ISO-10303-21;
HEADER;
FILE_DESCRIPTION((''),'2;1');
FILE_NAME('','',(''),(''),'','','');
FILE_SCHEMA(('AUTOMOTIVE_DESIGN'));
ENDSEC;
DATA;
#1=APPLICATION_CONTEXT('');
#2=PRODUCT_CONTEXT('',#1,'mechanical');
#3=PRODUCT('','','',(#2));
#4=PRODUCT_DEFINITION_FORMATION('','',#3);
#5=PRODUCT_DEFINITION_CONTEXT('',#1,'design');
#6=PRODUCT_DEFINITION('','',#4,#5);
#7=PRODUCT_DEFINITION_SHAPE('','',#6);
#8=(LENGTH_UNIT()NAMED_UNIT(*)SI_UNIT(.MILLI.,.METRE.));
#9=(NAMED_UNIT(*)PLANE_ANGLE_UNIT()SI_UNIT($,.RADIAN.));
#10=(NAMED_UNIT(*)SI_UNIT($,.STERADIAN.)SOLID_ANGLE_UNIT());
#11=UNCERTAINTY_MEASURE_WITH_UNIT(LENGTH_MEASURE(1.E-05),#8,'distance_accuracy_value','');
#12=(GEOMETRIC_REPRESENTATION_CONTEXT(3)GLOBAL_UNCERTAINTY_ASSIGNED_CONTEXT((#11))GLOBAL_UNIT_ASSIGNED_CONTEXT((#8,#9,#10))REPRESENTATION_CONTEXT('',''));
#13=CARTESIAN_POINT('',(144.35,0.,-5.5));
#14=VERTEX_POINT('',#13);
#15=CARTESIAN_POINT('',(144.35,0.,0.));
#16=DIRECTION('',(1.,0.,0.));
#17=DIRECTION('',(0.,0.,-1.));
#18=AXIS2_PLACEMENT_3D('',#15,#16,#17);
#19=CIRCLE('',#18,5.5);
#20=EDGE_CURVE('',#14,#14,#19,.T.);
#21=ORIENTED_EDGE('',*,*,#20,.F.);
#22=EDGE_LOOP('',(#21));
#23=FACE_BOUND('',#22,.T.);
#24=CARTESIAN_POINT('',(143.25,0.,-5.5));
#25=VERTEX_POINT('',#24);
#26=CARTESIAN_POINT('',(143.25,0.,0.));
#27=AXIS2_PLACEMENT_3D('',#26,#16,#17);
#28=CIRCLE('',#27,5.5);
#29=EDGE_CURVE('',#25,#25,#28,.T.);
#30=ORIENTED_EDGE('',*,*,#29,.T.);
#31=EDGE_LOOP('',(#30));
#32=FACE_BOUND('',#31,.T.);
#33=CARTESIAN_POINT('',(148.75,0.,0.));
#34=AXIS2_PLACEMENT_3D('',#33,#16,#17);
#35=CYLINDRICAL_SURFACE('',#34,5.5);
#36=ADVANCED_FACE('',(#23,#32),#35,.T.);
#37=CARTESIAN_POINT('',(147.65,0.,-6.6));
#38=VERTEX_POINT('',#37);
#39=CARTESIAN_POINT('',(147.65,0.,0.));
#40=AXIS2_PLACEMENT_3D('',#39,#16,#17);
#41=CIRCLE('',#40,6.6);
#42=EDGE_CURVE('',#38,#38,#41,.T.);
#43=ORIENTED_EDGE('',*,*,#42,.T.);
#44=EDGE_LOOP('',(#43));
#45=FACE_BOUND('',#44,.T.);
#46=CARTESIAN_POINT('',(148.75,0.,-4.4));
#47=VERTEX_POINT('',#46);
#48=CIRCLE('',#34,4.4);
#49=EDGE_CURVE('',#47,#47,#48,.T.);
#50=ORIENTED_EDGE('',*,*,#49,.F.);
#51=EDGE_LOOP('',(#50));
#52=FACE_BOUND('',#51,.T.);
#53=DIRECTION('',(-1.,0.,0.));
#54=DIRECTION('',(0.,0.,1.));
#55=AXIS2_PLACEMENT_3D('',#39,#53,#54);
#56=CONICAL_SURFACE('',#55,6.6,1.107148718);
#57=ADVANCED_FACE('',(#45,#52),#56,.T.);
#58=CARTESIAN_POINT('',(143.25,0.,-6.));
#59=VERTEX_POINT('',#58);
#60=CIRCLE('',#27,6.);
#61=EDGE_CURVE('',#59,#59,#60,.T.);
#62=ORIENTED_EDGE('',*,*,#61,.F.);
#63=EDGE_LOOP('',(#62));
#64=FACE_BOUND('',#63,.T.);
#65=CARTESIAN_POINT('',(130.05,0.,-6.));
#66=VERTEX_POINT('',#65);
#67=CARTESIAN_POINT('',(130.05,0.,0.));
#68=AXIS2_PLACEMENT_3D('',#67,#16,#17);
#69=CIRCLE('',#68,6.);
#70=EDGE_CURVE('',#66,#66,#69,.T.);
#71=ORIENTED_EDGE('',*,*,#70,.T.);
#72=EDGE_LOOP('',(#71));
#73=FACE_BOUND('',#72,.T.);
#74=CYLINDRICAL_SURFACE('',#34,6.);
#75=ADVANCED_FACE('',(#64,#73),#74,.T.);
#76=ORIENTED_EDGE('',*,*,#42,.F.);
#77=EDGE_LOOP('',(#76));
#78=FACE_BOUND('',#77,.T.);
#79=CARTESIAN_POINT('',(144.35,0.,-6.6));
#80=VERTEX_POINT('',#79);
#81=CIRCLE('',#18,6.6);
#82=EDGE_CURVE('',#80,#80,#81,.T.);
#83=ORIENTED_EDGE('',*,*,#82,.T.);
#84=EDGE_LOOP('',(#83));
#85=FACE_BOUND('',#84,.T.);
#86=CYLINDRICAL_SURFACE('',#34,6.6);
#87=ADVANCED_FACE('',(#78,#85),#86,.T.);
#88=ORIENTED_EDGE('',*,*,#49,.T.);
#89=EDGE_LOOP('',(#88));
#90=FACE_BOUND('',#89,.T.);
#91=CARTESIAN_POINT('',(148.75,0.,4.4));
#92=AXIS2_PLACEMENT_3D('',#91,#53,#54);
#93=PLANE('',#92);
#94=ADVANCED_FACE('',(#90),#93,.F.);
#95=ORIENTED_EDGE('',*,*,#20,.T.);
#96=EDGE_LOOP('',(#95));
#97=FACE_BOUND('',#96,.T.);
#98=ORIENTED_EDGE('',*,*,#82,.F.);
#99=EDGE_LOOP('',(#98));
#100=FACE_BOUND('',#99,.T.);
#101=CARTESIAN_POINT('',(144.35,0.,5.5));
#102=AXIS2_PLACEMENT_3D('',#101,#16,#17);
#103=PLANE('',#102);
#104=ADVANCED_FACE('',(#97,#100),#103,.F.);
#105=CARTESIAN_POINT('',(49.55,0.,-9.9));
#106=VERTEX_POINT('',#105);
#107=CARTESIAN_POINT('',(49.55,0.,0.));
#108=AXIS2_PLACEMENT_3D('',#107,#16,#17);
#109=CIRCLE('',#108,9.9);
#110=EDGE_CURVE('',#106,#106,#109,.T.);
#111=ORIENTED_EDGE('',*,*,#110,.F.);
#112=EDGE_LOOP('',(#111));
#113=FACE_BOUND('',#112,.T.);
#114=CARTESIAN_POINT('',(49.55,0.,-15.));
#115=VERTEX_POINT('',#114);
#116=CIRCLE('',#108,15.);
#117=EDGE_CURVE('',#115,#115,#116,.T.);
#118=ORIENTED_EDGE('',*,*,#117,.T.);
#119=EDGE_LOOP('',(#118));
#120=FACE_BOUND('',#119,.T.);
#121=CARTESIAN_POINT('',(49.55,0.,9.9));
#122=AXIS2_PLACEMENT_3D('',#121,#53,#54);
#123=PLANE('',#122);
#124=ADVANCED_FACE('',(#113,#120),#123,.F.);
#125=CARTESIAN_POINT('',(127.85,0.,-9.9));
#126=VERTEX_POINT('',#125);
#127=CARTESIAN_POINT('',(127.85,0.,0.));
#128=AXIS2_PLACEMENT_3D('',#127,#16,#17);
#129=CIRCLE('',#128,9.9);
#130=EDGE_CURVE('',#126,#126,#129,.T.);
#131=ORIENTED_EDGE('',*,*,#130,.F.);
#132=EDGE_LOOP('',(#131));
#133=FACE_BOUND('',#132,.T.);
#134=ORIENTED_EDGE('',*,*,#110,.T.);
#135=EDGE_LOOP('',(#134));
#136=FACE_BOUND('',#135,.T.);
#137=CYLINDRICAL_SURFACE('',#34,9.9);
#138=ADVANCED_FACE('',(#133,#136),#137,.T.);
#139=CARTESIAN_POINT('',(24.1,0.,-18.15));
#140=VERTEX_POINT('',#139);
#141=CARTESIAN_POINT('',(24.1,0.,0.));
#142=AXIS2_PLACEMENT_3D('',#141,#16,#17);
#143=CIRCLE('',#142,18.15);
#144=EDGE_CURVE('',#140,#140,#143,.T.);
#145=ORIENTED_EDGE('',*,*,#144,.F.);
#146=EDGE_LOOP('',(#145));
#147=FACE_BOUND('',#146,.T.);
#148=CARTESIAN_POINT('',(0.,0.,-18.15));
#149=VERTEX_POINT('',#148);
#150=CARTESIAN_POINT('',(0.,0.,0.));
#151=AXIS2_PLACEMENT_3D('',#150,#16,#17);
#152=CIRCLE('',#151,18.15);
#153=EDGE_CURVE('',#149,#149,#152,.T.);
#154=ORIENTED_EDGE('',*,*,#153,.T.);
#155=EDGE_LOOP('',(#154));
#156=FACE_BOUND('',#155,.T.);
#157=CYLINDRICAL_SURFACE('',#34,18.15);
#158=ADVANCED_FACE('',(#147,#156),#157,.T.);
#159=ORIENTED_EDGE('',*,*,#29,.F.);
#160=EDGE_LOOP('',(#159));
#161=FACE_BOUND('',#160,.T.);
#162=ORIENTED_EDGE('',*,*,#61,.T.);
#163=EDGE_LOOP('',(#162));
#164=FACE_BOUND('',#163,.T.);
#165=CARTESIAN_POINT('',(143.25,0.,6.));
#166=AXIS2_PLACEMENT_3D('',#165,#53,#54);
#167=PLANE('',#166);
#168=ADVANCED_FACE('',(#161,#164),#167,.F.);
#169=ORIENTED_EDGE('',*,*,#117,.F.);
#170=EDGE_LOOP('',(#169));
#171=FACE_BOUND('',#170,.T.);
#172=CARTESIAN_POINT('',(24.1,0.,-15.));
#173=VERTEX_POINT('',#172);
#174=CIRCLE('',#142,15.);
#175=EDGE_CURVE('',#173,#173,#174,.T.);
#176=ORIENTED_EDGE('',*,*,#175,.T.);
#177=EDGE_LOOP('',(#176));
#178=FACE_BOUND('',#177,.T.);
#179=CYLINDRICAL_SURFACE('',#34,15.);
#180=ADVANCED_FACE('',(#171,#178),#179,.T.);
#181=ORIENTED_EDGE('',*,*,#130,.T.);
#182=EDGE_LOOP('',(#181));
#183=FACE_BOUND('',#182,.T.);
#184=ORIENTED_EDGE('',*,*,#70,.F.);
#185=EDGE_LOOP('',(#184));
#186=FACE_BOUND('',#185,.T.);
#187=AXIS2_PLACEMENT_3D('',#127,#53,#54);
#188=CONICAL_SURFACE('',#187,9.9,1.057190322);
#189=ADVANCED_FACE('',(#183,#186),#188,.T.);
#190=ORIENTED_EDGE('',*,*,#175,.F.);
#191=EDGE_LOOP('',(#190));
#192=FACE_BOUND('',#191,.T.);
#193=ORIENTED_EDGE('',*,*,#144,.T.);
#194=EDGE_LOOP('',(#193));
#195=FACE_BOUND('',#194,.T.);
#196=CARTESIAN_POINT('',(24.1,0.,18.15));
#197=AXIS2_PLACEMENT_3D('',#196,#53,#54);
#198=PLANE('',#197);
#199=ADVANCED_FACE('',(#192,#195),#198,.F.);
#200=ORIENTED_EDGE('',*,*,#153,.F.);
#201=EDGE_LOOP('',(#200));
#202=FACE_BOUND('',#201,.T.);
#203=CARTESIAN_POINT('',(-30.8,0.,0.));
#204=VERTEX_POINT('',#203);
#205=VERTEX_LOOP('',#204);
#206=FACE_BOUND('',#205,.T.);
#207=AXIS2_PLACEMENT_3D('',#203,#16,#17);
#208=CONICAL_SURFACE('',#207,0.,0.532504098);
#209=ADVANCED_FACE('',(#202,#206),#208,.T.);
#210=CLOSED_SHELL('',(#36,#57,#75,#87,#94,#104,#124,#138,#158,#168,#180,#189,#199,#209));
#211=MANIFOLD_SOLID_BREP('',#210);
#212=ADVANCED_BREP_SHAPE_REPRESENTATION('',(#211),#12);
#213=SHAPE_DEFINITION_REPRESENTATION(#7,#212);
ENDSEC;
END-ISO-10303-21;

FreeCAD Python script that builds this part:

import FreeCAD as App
import Part
import Sketcher
from FreeCAD import Vector
Q = App.Units.Quantity

doc = App.newDocument("Part")
body = doc.addObject("PartDesign::Body", "Body")

sketch1 = doc.addObject("Sketcher::SketchObject", "Sketch")
body.addObject(sketch1)
sketch1.AttachmentSupport = (doc.XZ_Plane, [""])
sketch1.MapMode = "FlatFace"
sketch1.addGeometry([
    Part.LineSegment(Vector(-30.8, 0, 0), Vector(0, 18.15, 0)),
    Part.LineSegment(Vector(0, 18.15, 0), Vector(24.1, 18.15, 0)),
    Part.LineSegment(Vector(24.1, 18.15, 0), Vector(24.1, 15, 0)),
    Part.LineSegment(Vector(24.1, 15, 0), Vector(49.55, 15, 0)),
    Part.LineSegment(Vector(49.55, 15, 0), Vector(49.55, 9.9, 0)),
    Part.LineSegment(Vector(49.55, 9.9, 0), Vector(127.85, 9.9, 0)),
    Part.LineSegment(Vector(127.85, 9.9, 0), Vector(130.05, 6, 0)),
    Part.LineSegment(Vector(130.05, 6, 0), Vector(143.25, 6, 0)),
    Part.LineSegment(Vector(143.25, 6, 0), Vector(143.25, 5.5, 0)),
    Part.LineSegment(Vector(143.25, 5.5, 0), Vector(144.35, 5.5, 0)),
    Part.LineSegment(Vector(144.35, 5.5, 0), Vector(144.35, 6.6, 0)),
    Part.LineSegment(Vector(144.35, 6.6, 0), Vector(147.65, 6.6, 0)),
    Part.LineSegment(Vector(147.65, 6.6, 0), Vector(148.75, 4.4, 0)),
    Part.LineSegment(Vector(148.75, 4.4, 0), Vector(148.75, 0, 0)),
    Part.LineSegment(Vector(148.75, 0, 0), Vector(-30.8, 0, 0)),
], False)
sketch1.addConstraint([
    Sketcher.Constraint("Coincident", 0, 2, 1, 1),
    Sketcher.Constraint("Coincident", 1, 2, 2, 1),
    Sketcher.Constraint("Coincident", 2, 2, 3, 1),
    Sketcher.Constraint("Coincident", 3, 2, 4, 1),
    Sketcher.Constraint("Coincident", 4, 2, 5, 1),
    Sketcher.Constraint("Coincident", 5, 2, 6, 1),
    Sketcher.Constraint("Coincident", 6, 2, 7, 1),
    Sketcher.Constraint("Coincident", 7, 2, 8, 1),
    Sketcher.Constraint("Coincident", 8, 2, 9, 1),
    Sketcher.Constraint("Coincident", 9, 2, 10, 1),
    Sketcher.Constraint("Coincident", 10, 2, 11, 1),
    Sketcher.Constraint("Coincident", 11, 2, 12, 1),
    Sketcher.Constraint("Coincident", 12, 2, 13, 1),
    Sketcher.Constraint("Coincident", 13, 2, 14, 1),
    Sketcher.Constraint("Coincident", 14, 2, 0, 1),
    Sketcher.Constraint("Horizontal", 1),
    Sketcher.Constraint("Vertical", 2),
    Sketcher.Constraint("Horizontal", 3),
    Sketcher.Constraint("Vertical", 4),
    Sketcher.Constraint("Horizontal", 5),
    Sketcher.Constraint("Horizontal", 7),
    Sketcher.Constraint("Vertical", 8),
    Sketcher.Constraint("Horizontal", 9),
    Sketcher.Constraint("Vertical", 10),
    Sketcher.Constraint("Horizontal", 11),
    Sketcher.Constraint("Vertical", 13),
    Sketcher.Constraint("Horizontal", 14),
    Sketcher.Constraint("PointOnObject", 0, 2, -2),
    Sketcher.Constraint("PointOnObject", 13, 2, -1),
    Sketcher.Constraint("Equal", 9, 10),
    Sketcher.Constraint("DistanceX", 1, 1, 1, 2, Q("24.1 mm")),
    Sketcher.Constraint("DistanceX", 5, 1, 5, 2, Q("78.3 mm")),
    Sketcher.Constraint("DistanceX", 7, 1, 7, 2, Q("13.2 mm")),
    Sketcher.Constraint("DistanceX", 9, 1, 9, 2, Q("1.1 mm")),
    Sketcher.Constraint("DistanceX", 11, 1, 11, 2, Q("3.3 mm")),
    Sketcher.Constraint("DistanceY", 4, 2, 4, 1, Q("5.1 mm")),
    Sketcher.Constraint("DistanceY", 8, 2, 8, 1, Q("0.5 mm")),
    Sketcher.Constraint("DistanceY", 13, 2, 13, 1, Q("4.4 mm")),
    Sketcher.Constraint("DistanceY", -1, 1, 2, 2, Q("15 mm")),
    Sketcher.Constraint("DistanceY", -1, 1, 6, 2, Q("6 mm")),
    Sketcher.Constraint("DistanceX", 3, 1, 3, 2, Q("25.45 mm")),
    Sketcher.Constraint("DistanceX", 14, 2, 14, 1, Q("179.55 mm")),
    Sketcher.Constraint("DistanceY", 2, 2, 2, 1, Q("3.15 mm")),
    Sketcher.Constraint("DistanceX", 14, 2, -1, 1, Q("30.8 mm")),
    Sketcher.Constraint("DistanceX", 5, 2, 6, 2, Q("2.2 mm")),
])
revolution = doc.addObject("PartDesign::Revolution", "Revolution")
body.addObject(revolution)
revolution.Profile = sketch1
revolution.ReferenceAxis = (sketch1, ["H_Axis"])
revolution.Angle = 360

doc.recompute()
